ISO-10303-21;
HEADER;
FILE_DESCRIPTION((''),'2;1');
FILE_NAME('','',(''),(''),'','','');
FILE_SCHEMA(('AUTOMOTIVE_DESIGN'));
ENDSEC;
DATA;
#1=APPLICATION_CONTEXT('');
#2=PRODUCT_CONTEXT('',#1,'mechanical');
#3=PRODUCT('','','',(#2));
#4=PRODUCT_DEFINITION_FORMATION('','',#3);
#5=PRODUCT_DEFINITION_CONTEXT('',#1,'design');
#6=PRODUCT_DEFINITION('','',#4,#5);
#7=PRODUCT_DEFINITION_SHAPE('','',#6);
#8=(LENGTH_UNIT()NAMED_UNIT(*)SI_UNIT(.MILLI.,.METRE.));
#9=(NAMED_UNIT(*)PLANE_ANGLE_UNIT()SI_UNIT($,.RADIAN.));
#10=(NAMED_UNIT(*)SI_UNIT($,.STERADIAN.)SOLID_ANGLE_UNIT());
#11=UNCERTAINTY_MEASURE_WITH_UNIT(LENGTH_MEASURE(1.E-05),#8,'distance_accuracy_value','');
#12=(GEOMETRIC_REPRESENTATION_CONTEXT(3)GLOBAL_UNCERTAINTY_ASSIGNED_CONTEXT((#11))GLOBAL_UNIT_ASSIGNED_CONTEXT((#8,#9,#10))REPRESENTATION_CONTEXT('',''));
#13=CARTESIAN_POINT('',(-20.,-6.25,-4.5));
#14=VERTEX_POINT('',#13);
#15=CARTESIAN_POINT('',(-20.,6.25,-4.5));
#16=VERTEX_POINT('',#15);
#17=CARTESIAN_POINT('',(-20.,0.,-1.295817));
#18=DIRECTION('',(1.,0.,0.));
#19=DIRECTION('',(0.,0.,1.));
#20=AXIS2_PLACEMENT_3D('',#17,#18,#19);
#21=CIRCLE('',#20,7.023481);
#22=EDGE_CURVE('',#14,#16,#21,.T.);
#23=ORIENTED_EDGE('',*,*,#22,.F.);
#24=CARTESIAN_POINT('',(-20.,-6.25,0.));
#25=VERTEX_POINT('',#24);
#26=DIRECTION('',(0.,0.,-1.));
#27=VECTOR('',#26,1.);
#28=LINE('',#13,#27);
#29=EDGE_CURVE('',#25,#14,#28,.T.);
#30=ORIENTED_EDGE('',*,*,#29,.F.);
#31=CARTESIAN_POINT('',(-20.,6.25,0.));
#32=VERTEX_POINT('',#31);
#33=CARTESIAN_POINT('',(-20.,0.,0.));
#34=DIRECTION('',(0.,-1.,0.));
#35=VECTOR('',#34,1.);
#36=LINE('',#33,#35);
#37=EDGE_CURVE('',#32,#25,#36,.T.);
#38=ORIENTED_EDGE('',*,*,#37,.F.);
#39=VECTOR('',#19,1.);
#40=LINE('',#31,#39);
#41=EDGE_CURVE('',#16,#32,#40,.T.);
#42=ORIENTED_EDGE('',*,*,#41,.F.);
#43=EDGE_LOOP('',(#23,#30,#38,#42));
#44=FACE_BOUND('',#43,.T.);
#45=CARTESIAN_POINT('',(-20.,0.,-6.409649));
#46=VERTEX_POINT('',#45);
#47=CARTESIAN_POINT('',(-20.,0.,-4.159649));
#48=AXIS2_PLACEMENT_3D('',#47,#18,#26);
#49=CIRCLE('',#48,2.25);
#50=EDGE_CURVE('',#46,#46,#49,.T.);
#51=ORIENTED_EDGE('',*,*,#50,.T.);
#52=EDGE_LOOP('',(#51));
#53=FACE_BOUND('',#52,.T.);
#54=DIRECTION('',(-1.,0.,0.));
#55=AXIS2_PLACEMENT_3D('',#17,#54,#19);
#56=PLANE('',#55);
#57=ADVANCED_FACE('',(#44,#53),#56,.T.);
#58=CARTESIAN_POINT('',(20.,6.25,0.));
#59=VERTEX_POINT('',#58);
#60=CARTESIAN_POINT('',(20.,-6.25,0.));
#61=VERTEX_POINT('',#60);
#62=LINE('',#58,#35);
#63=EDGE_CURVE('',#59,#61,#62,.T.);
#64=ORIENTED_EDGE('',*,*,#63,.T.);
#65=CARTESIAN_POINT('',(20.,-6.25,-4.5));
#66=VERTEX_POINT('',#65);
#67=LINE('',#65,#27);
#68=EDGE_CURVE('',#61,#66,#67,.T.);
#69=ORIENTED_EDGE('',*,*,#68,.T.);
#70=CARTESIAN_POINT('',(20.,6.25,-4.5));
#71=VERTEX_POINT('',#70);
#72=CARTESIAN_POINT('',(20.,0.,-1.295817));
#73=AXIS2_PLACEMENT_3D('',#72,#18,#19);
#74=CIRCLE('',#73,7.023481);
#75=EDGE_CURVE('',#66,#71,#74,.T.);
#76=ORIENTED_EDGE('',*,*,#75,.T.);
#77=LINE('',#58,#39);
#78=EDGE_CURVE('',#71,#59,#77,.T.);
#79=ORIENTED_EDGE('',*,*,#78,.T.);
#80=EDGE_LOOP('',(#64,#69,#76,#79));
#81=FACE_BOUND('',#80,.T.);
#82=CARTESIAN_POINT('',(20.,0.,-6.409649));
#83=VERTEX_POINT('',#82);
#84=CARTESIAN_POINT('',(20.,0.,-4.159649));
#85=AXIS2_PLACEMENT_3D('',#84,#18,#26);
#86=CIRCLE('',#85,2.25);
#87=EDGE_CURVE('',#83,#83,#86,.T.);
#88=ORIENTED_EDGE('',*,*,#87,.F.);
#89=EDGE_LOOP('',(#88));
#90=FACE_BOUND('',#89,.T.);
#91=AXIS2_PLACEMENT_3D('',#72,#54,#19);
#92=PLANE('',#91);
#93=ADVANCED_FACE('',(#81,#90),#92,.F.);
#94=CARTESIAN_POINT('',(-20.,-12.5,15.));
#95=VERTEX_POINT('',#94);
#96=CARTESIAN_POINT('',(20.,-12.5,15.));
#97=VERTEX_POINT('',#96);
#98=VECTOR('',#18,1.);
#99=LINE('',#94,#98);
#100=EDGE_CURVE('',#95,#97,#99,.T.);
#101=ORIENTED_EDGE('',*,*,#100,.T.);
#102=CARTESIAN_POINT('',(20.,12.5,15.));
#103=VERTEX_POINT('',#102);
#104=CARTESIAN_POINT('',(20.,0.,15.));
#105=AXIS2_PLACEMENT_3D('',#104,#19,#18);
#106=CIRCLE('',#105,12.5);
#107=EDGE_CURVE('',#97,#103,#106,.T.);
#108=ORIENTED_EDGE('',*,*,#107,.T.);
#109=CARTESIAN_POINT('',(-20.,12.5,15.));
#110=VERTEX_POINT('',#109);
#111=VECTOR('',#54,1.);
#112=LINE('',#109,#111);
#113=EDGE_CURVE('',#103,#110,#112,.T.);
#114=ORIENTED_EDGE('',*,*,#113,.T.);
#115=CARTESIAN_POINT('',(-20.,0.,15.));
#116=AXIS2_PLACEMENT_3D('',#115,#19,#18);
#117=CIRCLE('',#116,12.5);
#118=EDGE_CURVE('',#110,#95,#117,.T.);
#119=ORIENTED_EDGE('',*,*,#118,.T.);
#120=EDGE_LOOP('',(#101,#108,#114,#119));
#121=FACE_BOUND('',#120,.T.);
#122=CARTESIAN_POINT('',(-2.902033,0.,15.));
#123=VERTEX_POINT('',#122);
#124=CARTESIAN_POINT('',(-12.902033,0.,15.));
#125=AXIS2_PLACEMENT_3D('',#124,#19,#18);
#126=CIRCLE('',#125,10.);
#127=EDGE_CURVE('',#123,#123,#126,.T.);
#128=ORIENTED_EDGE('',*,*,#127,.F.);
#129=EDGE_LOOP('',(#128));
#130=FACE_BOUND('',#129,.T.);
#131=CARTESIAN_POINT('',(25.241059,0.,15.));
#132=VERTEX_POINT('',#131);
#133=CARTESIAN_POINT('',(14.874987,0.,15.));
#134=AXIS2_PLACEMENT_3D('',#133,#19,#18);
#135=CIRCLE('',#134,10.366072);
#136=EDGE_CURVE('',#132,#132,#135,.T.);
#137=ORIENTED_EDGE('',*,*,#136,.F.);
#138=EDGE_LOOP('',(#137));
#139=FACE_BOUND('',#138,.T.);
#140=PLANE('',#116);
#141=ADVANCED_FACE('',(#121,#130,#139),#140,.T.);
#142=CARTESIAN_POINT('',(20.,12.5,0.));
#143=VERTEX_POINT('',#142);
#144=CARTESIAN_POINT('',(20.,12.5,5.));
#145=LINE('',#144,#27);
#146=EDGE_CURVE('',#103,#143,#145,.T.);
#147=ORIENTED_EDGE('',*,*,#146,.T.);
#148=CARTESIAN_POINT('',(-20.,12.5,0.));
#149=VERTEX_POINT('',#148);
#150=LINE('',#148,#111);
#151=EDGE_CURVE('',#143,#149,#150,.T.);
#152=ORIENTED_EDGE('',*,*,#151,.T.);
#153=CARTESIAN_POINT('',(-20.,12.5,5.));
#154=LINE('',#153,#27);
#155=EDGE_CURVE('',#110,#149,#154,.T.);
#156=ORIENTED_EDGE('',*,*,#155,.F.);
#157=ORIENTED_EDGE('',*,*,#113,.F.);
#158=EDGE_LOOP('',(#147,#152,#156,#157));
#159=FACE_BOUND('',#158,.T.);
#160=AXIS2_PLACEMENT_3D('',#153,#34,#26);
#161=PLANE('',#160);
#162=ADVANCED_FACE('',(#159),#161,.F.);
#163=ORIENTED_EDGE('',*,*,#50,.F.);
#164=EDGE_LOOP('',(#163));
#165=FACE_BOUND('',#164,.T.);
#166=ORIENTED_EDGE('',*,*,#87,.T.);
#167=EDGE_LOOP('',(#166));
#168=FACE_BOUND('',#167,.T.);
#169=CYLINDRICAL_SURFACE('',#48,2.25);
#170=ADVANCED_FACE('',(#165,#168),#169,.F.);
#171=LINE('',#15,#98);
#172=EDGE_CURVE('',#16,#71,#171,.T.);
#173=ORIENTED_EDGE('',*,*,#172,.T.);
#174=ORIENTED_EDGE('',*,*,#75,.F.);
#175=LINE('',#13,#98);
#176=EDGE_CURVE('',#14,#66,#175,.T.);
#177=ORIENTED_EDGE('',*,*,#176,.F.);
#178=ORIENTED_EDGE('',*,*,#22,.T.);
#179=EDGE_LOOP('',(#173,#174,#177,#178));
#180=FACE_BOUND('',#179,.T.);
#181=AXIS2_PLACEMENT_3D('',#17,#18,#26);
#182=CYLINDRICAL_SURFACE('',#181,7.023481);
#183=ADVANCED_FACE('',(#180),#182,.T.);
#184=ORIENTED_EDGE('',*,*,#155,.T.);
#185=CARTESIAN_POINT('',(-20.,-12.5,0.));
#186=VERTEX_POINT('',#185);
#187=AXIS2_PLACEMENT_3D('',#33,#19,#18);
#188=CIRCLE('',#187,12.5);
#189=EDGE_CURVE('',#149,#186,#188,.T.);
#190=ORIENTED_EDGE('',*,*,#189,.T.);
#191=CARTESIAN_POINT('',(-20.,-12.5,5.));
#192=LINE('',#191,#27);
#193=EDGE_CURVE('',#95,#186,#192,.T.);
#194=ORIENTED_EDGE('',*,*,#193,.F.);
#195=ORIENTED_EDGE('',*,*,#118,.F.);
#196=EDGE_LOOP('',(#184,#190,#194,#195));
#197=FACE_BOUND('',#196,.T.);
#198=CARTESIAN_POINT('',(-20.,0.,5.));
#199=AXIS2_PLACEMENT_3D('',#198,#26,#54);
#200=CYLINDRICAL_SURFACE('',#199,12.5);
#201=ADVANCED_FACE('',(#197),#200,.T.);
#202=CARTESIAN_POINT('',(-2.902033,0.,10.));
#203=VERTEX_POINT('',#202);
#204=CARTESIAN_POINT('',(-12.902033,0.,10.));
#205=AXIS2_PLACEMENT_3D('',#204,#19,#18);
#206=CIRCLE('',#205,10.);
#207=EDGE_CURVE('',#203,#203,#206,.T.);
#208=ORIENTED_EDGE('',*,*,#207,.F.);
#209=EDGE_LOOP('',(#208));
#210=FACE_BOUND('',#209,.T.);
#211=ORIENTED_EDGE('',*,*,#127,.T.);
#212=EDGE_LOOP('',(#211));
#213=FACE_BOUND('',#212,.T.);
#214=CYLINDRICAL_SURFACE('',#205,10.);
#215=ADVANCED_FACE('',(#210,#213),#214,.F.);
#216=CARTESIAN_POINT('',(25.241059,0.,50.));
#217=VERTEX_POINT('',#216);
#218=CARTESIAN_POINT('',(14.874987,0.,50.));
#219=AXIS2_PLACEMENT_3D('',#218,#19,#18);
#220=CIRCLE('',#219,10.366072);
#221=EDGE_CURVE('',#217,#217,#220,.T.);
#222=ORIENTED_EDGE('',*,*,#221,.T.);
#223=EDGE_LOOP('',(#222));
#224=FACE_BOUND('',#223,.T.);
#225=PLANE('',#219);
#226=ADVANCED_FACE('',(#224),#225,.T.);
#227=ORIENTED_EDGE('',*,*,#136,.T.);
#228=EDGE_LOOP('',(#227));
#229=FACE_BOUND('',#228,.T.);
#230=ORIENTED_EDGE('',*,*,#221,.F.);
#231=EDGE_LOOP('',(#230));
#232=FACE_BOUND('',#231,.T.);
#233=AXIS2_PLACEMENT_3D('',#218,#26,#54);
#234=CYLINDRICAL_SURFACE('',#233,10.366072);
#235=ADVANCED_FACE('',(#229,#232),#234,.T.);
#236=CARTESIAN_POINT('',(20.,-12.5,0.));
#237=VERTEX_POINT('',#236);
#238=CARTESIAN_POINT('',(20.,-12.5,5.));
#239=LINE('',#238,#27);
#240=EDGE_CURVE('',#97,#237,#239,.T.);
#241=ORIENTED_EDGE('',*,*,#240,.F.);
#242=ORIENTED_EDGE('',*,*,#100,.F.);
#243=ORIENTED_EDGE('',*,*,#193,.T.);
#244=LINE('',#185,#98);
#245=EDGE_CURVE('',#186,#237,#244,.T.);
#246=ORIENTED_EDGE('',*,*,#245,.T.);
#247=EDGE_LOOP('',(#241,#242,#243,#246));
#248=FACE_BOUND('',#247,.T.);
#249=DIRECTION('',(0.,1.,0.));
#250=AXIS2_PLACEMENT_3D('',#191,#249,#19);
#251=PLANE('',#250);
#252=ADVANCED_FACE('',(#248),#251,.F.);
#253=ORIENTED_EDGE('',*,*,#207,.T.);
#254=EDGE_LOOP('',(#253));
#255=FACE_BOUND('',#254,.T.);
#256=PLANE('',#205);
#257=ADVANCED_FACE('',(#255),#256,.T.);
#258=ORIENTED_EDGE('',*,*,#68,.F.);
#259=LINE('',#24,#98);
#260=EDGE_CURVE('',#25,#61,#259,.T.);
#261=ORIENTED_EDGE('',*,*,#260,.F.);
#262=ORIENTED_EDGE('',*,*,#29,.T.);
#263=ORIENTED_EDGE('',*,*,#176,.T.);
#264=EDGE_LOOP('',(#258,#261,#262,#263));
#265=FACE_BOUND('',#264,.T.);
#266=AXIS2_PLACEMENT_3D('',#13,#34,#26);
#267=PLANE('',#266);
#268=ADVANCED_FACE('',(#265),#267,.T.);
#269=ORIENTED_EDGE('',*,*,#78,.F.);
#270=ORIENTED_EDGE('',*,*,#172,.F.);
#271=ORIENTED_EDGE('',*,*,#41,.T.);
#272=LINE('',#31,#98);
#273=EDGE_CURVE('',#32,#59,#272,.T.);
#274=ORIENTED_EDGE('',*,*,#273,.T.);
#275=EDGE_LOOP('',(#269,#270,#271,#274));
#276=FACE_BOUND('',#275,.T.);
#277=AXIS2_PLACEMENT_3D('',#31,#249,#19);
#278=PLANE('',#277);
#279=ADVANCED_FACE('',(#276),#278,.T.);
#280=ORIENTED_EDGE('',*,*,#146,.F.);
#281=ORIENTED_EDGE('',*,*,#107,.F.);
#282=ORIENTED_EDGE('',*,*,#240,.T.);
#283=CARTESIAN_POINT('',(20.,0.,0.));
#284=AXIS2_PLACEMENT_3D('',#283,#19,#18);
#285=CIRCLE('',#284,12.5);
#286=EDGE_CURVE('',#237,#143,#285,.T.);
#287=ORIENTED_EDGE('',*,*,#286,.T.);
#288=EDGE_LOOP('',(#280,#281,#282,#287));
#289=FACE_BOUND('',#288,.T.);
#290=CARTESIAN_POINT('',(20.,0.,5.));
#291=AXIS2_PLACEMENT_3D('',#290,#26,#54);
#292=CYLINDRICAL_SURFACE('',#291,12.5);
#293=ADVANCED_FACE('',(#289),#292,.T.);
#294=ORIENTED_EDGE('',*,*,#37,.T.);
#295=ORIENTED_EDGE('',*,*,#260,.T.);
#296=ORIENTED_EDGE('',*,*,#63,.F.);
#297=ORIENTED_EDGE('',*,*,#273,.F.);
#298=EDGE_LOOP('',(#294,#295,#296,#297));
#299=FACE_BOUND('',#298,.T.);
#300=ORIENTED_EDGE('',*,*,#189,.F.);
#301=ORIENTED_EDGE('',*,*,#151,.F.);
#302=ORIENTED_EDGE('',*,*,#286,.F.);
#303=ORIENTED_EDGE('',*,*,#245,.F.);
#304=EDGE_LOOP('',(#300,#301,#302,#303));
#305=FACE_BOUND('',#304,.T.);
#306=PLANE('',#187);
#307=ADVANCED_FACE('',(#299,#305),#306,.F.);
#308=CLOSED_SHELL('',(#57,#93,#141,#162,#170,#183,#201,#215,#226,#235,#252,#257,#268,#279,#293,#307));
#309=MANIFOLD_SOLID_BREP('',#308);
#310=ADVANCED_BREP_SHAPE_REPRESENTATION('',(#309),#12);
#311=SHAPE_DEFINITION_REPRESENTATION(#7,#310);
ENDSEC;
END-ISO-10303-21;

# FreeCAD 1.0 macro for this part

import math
import FreeCAD as App
import Part
import Sketcher

V = App.Vector
Q = App.Units.Quantity

doc = App.newDocument("Part")
body = doc.addObject("PartDesign::Body", "Body")

# Sketch on XY plane
sketch1 = doc.addObject("Sketcher::SketchObject", "Sketch")
body.addObject(sketch1)
sketch1.AttachmentSupport = (doc.XY_Plane, [""])
sketch1.MapMode = "FlatFace"
sketch1.addGeometry([
    Part.LineSegment(V(20, 12, 0), V(-20, 12, 0)),
    Part.ArcOfCircle(Part.Circle(V(-20, 0, 0), V(0, 0, 1), 12), math.radians(90), math.radians(270)),
    Part.LineSegment(V(-20, -12, 0), V(20, -12, 0)),
    Part.ArcOfCircle(Part.Circle(V(20, 0, 0), V(0, 0, 1), 12), math.radians(-90), math.radians(90)),
], False)
sketch1.addConstraint([
    Sketcher.Constraint("Tangent", 0, 2, 1, 1),
    Sketcher.Constraint("Tangent", 1, 2, 2, 1),
    Sketcher.Constraint("Tangent", 2, 2, 3, 1),
    Sketcher.Constraint("Tangent", 3, 2, 0, 1),
    Sketcher.Constraint("Horizontal", 0),
    Sketcher.Constraint("Horizontal", 2),
    Sketcher.Constraint("Symmetric", 1, 3, 3, 3, -1, 1),
    Sketcher.Constraint("Radius", 1, Q("12.5 mm")),
    Sketcher.Constraint("DistanceX", 0, 2, 0, 1, Q("40 mm")),
])
pad1 = doc.addObject("PartDesign::Pad", "Pad")
body.addObject(pad1)
pad1.Profile = sketch1
pad1.Length = 5

# Sketch on XY plane
sketch2 = doc.addObject("Sketcher::SketchObject", "Sketch001")
body.addObject(sketch2)
sketch2.AttachmentSupport = (doc.XY_Plane, [""])
sketch2.MapMode = "FlatFace"
sketch2.AttachmentOffset = App.Placement(V(0, 0, 5), App.Rotation())
sketch2.addGeometry([
    Part.LineSegment(V(20, 12, 0), V(-20, 12, 0)),
    Part.ArcOfCircle(Part.Circle(V(-20, 0, 0), V(0, 0, 1), 12), math.radians(90), math.radians(270)),
    Part.LineSegment(V(-20, -12, 0), V(20, -12, 0)),
    Part.ArcOfCircle(Part.Circle(V(20, 0, 0), V(0, 0, 1), 12), math.radians(-90), math.radians(90)),
], False)
sketch2.addConstraint([
    Sketcher.Constraint("Tangent", 0, 2, 1, 1),
    Sketcher.Constraint("Tangent", 1, 2, 2, 1),
    Sketcher.Constraint("Tangent", 2, 2, 3, 1),
    Sketcher.Constraint("Tangent", 3, 2, 0, 1),
    Sketcher.Constraint("Horizontal", 0),
    Sketcher.Constraint("Horizontal", 2),
    Sketcher.Constraint("Symmetric", 1, 3, 3, 3, -1, 1),
    Sketcher.Constraint("Radius", 1, Q("12.5 mm")),
    Sketcher.Constraint("DistanceX", 0, 2, 0, 1, Q("40 mm")),
])
pad2 = doc.addObject("PartDesign::Pad", "Pad001")
body.addObject(pad2)
pad2.Profile = sketch2
pad2.Length = 5

# Sketch on XY plane
sketch3 = doc.addObject("Sketcher::SketchObject", "Sketch002")
body.addObject(sketch3)
sketch3.AttachmentSupport = (doc.XY_Plane, [""])
sketch3.MapMode = "FlatFace"
sketch3.AttachmentOffset = App.Placement(V(0, 0, 10), App.Rotation())
sketch3.addGeometry([
    Part.LineSegment(V(20, 12, 0), V(-20, 12, 0)),
    Part.ArcOfCircle(Part.Circle(V(-20, 0, 0), V(0, 0, 1), 12), math.radians(90), math.radians(270)),
    Part.LineSegment(V(-20, -12, 0), V(20, -12, 0)),
    Part.ArcOfCircle(Part.Circle(V(20, 0, 0), V(0, 0, 1), 12), math.radians(-90), math.radians(90)),
], False)
sketch3.addConstraint([
    Sketcher.Constraint("Tangent", 0, 2, 1, 1),
    Sketcher.Constraint("Tangent", 1, 2, 2, 1),
    Sketcher.Constraint("Tangent", 2, 2, 3, 1),
    Sketcher.Constraint("Tangent", 3, 2, 0, 1),
    Sketcher.Constraint("Horizontal", 0),
    Sketcher.Constraint("Horizontal", 2),
    Sketcher.Constraint("Symmetric", 1, 3, 3, 3, -1, 1),
    Sketcher.Constraint("Radius", 1, Q("12.5 mm")),
    Sketcher.Constraint("DistanceX", 0, 2, 0, 1, Q("40 mm")),
])
pad3 = doc.addObject("PartDesign::Pad", "Pad002")
body.addObject(pad3)
pad3.Profile = sketch3
pad3.Length = 5

# Sketch on XY plane
sketch4 = doc.addObject("Sketcher::SketchObject", "Sketch003")
body.addObject(sketch4)
sketch4.AttachmentSupport = (doc.XY_Plane, [""])
sketch4.MapMode = "FlatFace"
sketch4.AttachmentOffset = App.Placement(V(0, 0, 15), App.Rotation())
sketch4.addGeometry([
    Part.Circle(V(-13, 0, 0), V(0, 0, 1), 10),
    Part.Circle(V(-13, 0, 0), V(0, 0, 1), 8),
], False)
sketch4.addConstraint([
    Sketcher.Constraint("Coincident", 1, 3, 0, 3),
    Sketcher.Constraint("PointOnObject", 0, 3, -1),
    Sketcher.Constraint("Diameter", 0, Q("20 mm")),
    Sketcher.Constraint("Diameter", 1, Q("15 mm")),
    Sketcher.Constraint("DistanceX", 0, 3, -1, 1, Q("12.902033 mm")),
])
pocket1 = doc.addObject("PartDesign::Pocket", "Pocket")
body.addObject(pocket1)
pocket1.Profile = sketch4
pocket1.Length = 5

# Sketch on XY plane
sketch5 = doc.addObject("Sketcher::SketchObject", "Sketch004")
body.addObject(sketch5)
sketch5.AttachmentSupport = (doc.XY_Plane, [""])
sketch5.MapMode = "FlatFace"
sketch5.AttachmentOffset = App.Placement(V(0, 0, 15), App.Rotation())
sketch5.addGeometry(Part.Circle(V(15, 0, 0), V(0, 0, 1), 10), False)
sketch5.addConstraint([
    Sketcher.Constraint("PointOnObject", 0, 3, -1),
    Sketcher.Constraint("Diameter", 0, Q("20.732144 mm")),
    Sketcher.Constraint("DistanceX", -1, 1, 0, 3, Q("14.874987 mm")),
])
pad4 = doc.addObject("PartDesign::Pad", "Pad003")
body.addObject(pad4)
pad4.Profile = sketch5
pad4.Length = 35

# Sketch on XY plane
sketch6 = doc.addObject("Sketcher::SketchObject", "Sketch005")
body.addObject(sketch6)
sketch6.AttachmentSupport = (doc.XY_Plane, [""])
sketch6.MapMode = "FlatFace"
sketch6.AttachmentOffset = App.Placement(V(0, 0, 15), App.Rotation())
sketch6.addGeometry(Part.Circle(V(-13, 0, 0), V(0, 0, 1), 8), False)
sketch6.addConstraint([
    Sketcher.Constraint("PointOnObject", 0, 3, -1),
    Sketcher.Constraint("Diameter", 0, Q("15 mm")),
    Sketcher.Constraint("DistanceX", 0, 3, -1, 1, Q("12.902033 mm")),
])
pocket2 = doc.addObject("PartDesign::Pocket", "Pocket001")
body.addObject(pocket2)
pocket2.Profile = sketch6
pocket2.Length = 5

# Sketch on YZ plane
sketch7 = doc.addObject("Sketcher::SketchObject", "Sketch006")
body.addObject(sketch7)
sketch7.AttachmentSupport = (doc.YZ_Plane, [""])
sketch7.MapMode = "FlatFace"
sketch7.AttachmentOffset = App.Placement(V(0, 0, 20), App.Rotation())
sketch7.addGeometry([
    Part.LineSegment(V(6.2, 0, 0), V(-6.2, 0, 0)),
    Part.LineSegment(V(-6.2, 0, 0), V(-6.2, -4.5, 0)),
    Part.ArcOfCircle(Part.Circle(V(0, -1.3, 0), V(0, 0, 1), 7), math.radians(-153), math.radians(-27)),
    Part.LineSegment(V(6.2, -4.5, 0), V(6.2, 0, 0)),
], False)
sketch7.addConstraint([
    Sketcher.Constraint("Coincident", 0, 2, 1, 1),
    Sketcher.Constraint("Coincident", 1, 2, 2, 1),
    Sketcher.Constraint("Coincident", 2, 2, 3, 1),
    Sketcher.Constraint("Coincident", 3, 2, 0, 1),
    Sketcher.Constraint("Horizontal", 0),
    Sketcher.Constraint("Vertical", 1),
    Sketcher.Constraint("Vertical", 3),
    Sketcher.Constraint("Symmetric", 0, 2, 3, 2, -1, 1),
    Sketcher.Constraint("PointOnObject", 2, 3, -2),
    Sketcher.Constraint("DistanceX", 0, 2, 0, 1, Q("12.5 mm")),
    Sketcher.Constraint("DistanceY", 1, 2, 1, 1, Q("4.5 mm")),
    Sketcher.Constraint("Radius", 2, Q("7.023481 mm")),
])
pad5 = doc.addObject("PartDesign::Pad", "Pad004")
body.addObject(pad5)
pad5.Profile = sketch7
pad5.Length = 40
pad5.Reversed = True

# Sketch on YZ plane
sketch8 = doc.addObject("Sketcher::SketchObject", "Sketch007")
body.addObject(sketch8)
sketch8.AttachmentSupport = (doc.YZ_Plane, [""])
sketch8.MapMode = "FlatFace"
sketch8.AttachmentOffset = App.Placement(V(0, 0, 20), App.Rotation())
sketch8.addGeometry(Part.Circle(V(0, -4.2, 0), V(0, 0, 1), 2.2), False)
sketch8.addConstraint([
    Sketcher.Constraint("PointOnObject", 0, 3, -2),
    Sketcher.Constraint("Diameter", 0, Q("4.5 mm")),
    Sketcher.Constraint("DistanceY", 0, 3, -1, 1, Q("4.159649 mm")),
])
pocket3 = doc.addObject("PartDesign::Pocket", "Pocket002")
body.addObject(pocket3)
pocket3.Profile = sketch8
pocket3.Length = 40

doc.recompute()
